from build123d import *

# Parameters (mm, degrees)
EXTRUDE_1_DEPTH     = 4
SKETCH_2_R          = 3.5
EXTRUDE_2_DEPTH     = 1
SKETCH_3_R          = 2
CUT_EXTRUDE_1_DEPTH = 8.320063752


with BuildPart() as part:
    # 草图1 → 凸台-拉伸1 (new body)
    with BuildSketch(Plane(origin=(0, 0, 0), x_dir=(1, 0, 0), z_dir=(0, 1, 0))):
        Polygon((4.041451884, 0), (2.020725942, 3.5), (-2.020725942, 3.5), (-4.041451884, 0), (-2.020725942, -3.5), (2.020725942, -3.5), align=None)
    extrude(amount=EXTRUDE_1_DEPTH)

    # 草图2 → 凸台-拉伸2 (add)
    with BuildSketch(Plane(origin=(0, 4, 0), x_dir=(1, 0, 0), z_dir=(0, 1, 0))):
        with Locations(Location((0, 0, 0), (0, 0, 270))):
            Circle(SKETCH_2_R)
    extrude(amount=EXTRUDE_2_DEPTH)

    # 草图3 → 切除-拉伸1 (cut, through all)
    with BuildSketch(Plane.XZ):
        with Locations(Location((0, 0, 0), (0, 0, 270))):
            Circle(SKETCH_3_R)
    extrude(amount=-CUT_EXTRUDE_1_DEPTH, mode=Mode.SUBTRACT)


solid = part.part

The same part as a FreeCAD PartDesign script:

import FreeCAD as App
import Part
import Sketcher
Q = App.Units.Quantity

doc = App.newDocument("Part")
body = doc.addObject("PartDesign::Body", "Body")

# Sketch on XZ plane
sketch1 = body.newObject("Sketcher::SketchObject", "Sketch")
sketch1.AttachmentSupport = (doc.getObject("XZ_Plane"), [""])
sketch1.MapMode = "FlatFace"
sketch1.addGeometry([
    Part.LineSegment(App.Vector(4, 0, 0), App.Vector(2, -3.5, 0)),  # 0
    Part.LineSegment(App.Vector(2, -3.5, 0), App.Vector(-2, -3.5, 0)),  # 1
    Part.LineSegment(App.Vector(-2, -3.5, 0), App.Vector(-4, 0, 0)),  # 2
    Part.LineSegment(App.Vector(-4, 0, 0), App.Vector(-2, 3.5, 0)),  # 3
    Part.LineSegment(App.Vector(-2, 3.5, 0), App.Vector(2, 3.5, 0)),  # 4
    Part.LineSegment(App.Vector(2, 3.5, 0), App.Vector(4, 0, 0)),  # 5
], False)
sketch1.addConstraint([
    Sketcher.Constraint("Coincident", 0, 2, 1, 1),
    Sketcher.Constraint("Coincident", 1, 2, 2, 1),
    Sketcher.Constraint("Coincident", 2, 2, 3, 1),
    Sketcher.Constraint("Coincident", 3, 2, 4, 1),
    Sketcher.Constraint("Coincident", 4, 2, 5, 1),
    Sketcher.Constraint("Coincident", 5, 2, 0, 1),
    Sketcher.Constraint("Horizontal", 1),
    Sketcher.Constraint("Horizontal", 4),
    Sketcher.Constraint("Symmetric", 0, 2, 3, 2, -1, 1),
    Sketcher.Constraint("Symmetric", 2, 2, 5, 2, -1, 1),
    Sketcher.Constraint("PointOnObject", 2, 2, -1),
    Sketcher.Constraint("Parallel", 2, 5),
    Sketcher.Constraint("Vertical", 1, 2, 3, 2),
    Sketcher.Constraint("Angle", 0, Q("-120 deg")),
    Sketcher.Constraint("DistanceY", 1, 2, 3, 2, Q("7 mm")),
    Sketcher.Constraint("DistanceX", 1, 2, 1, 1, Q("4.041452 mm")),
])
pad1 = body.newObject("PartDesign::Pad", "Pad")
pad1.Profile = sketch1
pad1.Length = 4
pad1.Reversed = True

# Sketch on XZ plane
sketch2 = body.newObject("Sketcher::SketchObject", "Sketch001")
sketch2.AttachmentSupport = (doc.getObject("XZ_Plane"), [""])
sketch2.MapMode = "FlatFace"
sketch2.AttachmentOffset = App.Placement(App.Vector(0, 0, -4), App.Rotation())
sketch2.addGeometry(Part.Circle(App.Vector(0, 0, 0), App.Vector(0, 0, 1), 3.5), False)
sketch2.addConstraint([
    Sketcher.Constraint("Coincident", 0, 3, -1, 1),
    Sketcher.Constraint("Diameter", 0, Q("7 mm")),
])
pad2 = body.newObject("PartDesign::Pad", "Pad001")
pad2.Profile = sketch2
pad2.Length = 1
pad2.Reversed = True

# Sketch on XZ plane
sketch3 = body.newObject("Sketcher::SketchObject", "Sketch002")
sketch3.AttachmentSupport = (doc.getObject("XZ_Plane"), [""])
sketch3.MapMode = "FlatFace"
sketch3.addGeometry(Part.Circle(App.Vector(0, 0, 0), App.Vector(0, 0, 1), 2), False)
sketch3.addConstraint([
    Sketcher.Constraint("Coincident", 0, 3, -1, 1),
    Sketcher.Constraint("Diameter", 0, Q("4 mm")),
])
pocket1 = body.newObject("PartDesign::Pocket", "Pocket")
pocket1.Profile = sketch3
pocket1.Type = "ThroughAll"

doc.recompute()
